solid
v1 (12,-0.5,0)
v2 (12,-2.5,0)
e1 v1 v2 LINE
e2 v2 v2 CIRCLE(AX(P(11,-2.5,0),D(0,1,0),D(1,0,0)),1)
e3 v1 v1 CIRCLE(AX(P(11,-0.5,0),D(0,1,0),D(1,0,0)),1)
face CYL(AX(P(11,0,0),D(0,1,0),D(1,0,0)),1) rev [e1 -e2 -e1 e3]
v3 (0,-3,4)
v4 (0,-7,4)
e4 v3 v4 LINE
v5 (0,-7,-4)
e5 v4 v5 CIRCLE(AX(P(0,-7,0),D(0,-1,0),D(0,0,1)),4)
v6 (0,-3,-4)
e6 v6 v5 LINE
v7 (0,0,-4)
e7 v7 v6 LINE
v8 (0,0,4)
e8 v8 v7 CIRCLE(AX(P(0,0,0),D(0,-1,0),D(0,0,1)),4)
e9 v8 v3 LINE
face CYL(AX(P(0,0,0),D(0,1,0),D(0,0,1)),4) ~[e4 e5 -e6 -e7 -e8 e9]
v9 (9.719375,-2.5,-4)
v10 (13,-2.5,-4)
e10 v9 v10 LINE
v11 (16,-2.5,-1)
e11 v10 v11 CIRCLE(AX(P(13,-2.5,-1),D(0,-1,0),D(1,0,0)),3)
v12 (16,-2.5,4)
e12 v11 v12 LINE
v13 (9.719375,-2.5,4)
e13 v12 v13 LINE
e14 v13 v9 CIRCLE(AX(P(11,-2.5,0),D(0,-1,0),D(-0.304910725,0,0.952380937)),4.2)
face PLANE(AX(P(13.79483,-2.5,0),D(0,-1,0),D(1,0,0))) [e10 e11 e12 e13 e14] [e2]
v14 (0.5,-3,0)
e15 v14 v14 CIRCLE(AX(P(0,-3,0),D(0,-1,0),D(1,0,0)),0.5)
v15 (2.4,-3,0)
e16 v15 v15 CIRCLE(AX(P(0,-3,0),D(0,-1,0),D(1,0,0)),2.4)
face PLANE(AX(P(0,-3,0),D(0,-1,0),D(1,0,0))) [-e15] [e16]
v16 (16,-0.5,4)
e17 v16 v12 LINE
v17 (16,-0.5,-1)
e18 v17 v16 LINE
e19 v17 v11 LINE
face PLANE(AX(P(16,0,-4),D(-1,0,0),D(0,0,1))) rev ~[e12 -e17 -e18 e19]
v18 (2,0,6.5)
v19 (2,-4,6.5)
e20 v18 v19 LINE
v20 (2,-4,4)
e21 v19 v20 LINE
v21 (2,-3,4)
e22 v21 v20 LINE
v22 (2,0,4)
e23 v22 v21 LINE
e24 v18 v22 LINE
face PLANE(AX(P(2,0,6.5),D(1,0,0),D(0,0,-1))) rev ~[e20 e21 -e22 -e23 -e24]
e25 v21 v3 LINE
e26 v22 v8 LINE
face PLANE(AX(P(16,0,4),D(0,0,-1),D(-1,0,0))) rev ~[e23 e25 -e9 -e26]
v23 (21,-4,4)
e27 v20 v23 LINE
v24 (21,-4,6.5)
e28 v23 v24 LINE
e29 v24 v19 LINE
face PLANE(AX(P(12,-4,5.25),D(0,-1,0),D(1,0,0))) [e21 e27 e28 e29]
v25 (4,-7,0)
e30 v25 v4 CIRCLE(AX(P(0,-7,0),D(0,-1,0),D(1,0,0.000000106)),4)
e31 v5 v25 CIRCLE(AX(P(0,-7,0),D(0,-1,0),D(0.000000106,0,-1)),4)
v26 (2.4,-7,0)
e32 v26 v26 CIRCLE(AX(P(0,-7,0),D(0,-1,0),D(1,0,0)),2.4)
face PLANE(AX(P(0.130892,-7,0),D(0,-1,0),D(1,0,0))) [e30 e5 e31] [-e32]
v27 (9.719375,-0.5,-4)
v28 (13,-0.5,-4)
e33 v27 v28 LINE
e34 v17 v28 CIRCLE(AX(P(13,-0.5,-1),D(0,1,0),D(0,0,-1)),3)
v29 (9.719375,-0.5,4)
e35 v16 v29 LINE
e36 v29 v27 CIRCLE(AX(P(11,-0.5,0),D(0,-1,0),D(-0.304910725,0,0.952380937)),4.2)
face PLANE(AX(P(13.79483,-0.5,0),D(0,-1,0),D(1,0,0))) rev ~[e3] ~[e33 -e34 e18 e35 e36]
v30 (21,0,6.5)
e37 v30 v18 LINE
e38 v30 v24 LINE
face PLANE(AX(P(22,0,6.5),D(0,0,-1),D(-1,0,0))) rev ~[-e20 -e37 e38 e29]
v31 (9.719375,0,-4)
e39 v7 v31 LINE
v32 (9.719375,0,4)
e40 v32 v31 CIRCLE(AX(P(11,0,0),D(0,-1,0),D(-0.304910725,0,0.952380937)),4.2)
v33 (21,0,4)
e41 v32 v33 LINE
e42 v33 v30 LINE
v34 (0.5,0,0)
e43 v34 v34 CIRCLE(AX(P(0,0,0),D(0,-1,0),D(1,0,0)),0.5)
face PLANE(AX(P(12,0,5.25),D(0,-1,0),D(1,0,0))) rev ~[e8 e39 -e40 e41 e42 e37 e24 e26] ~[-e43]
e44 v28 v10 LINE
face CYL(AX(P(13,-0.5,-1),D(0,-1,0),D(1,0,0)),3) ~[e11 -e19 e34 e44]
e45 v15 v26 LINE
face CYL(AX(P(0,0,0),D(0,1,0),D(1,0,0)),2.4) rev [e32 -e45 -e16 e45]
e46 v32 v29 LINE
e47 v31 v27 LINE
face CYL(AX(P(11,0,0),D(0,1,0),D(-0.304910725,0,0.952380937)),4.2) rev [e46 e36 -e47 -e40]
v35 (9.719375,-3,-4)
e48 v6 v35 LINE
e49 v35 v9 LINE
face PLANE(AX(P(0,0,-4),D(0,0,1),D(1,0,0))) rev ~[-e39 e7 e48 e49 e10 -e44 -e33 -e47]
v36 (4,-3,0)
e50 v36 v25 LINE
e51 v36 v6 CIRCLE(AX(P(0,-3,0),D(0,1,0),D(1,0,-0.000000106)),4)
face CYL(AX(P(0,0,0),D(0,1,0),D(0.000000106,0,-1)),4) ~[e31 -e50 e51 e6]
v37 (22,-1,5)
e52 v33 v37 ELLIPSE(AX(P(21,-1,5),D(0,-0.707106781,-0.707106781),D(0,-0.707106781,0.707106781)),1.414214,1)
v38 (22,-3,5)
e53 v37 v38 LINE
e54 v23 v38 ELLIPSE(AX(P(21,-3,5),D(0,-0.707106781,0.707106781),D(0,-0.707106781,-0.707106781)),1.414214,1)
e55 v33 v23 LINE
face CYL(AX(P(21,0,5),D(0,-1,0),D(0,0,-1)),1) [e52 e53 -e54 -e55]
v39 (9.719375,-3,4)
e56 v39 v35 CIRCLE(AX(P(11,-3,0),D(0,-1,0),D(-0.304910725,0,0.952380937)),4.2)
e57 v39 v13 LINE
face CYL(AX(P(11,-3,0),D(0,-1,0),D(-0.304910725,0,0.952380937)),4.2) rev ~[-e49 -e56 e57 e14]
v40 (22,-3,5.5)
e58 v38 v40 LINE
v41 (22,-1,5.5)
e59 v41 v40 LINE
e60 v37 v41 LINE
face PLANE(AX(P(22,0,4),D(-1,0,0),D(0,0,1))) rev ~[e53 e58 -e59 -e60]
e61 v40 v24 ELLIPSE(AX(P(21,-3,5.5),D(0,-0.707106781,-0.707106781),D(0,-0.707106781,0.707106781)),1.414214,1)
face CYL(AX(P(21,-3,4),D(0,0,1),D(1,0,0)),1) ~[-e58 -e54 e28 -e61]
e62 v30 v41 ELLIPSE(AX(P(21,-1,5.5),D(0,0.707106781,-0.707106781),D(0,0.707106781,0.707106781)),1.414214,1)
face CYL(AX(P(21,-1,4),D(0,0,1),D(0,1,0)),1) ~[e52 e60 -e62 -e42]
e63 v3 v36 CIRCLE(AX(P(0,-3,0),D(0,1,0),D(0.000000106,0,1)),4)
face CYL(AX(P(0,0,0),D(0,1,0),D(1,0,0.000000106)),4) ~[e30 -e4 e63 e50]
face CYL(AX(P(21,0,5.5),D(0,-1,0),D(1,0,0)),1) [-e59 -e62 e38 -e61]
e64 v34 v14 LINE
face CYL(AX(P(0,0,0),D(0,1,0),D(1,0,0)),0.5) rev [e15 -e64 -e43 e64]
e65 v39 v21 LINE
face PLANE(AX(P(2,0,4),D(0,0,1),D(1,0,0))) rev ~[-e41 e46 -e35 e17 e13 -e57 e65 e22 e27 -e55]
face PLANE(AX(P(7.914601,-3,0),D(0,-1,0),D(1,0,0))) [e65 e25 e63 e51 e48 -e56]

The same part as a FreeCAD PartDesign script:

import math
import FreeCAD as App
import Part
import Sketcher
from FreeCAD import Vector
Q = App.Units.Quantity


def edges_at(feature, points):
    """Names of the edges that pass closest to the given points."""
    edges = feature.Shape.Edges
    near = lambda p: min(range(len(edges)), key=lambda i: edges[i].distToShape(Part.Vertex(*p))[0])
    return sorted({f"Edge{near(p) + 1}" for p in points})

doc = App.newDocument("Part")
body = doc.addObject("PartDesign::Body", "Body")

sketch1 = body.newObject("Sketcher::SketchObject", "Sketch")
sketch1.AttachmentSupport = (doc.getObject("XZ_Plane"), [""])
sketch1.MapMode = "FlatFace"
sketch1.addGeometry(Part.ArcOfCircle(Part.Circle(Vector(0, 0, 0), Vector(0, 0, 1), 4), math.radians(0), math.radians(90)), False)
sketch1.addGeometry(Part.ArcOfCircle(Part.Circle(Vector(0, 0, 0), Vector(0, 0, 1), 4), math.radians(-90), math.radians(0)), False)
sketch1.addGeometry(Part.LineSegment(Vector(0, -4, 0), Vector(16, -4, 0)), False)
sketch1.addGeometry(Part.LineSegment(Vector(16, -4, 0), Vector(16, 4, 0)), False)
sketch1.addGeometry(Part.LineSegment(Vector(16, 4, 0), Vector(0, 4, 0)), False)
sketch1.addGeometry(Part.Circle(Vector(11, 0, 0), Vector(0, 0, 1), 1), False)
sketch1.addConstraint(Sketcher.Constraint("Tangent", 0, 1, 1, 2))
sketch1.addConstraint(Sketcher.Constraint("Tangent", 1, 1, 2, 1))
sketch1.addConstraint(Sketcher.Constraint("Coincident", 2, 2, 3, 1))
sketch1.addConstraint(Sketcher.Constraint("Coincident", 3, 2, 4, 1))
sketch1.addConstraint(Sketcher.Constraint("Tangent", 4, 2, 0, 2))
sketch1.addConstraint(Sketcher.Constraint("Horizontal", 2))
sketch1.addConstraint(Sketcher.Constraint("Vertical", 3))
sketch1.addConstraint(Sketcher.Constraint("Horizontal", 4))
sketch1.addConstraint(Sketcher.Constraint("Coincident", 0, 3, -1, 1))
sketch1.addConstraint(Sketcher.Constraint("Equal", 0, 1))
sketch1.addConstraint(Sketcher.Constraint("PointOnObject", 5, 3, -1))
sketch1.addConstraint(Sketcher.Constraint("PointOnObject", 0, 1, -1))
sketch1.addConstraint(Sketcher.Constraint("Diameter", 5, Q("2 mm")))
sketch1.addConstraint(Sketcher.Constraint("Radius", 0, Q("4 mm")))
sketch1.addConstraint(Sketcher.Constraint("DistanceX", 2, 1, 2, 2, Q("16 mm")))
sketch1.addConstraint(Sketcher.Constraint("DistanceX", -1, 1, 5, 3, Q("11 mm")))
pad1 = body.newObject("PartDesign::Pad", "Pad")
pad1.Profile = sketch1
pad1.Length = 3

sketch2 = body.newObject("Sketcher::SketchObject", "Sketch001")
sketch2.AttachmentSupport = (doc.getObject("XZ_Plane"), [""])
sketch2.MapMode = "FlatFace"
sketch2.addGeometry(Part.ArcOfCircle(Part.Circle(Vector(0, 0, 0), Vector(0, 0, 1), 4), math.radians(-90), math.radians(0)), False)
sketch2.addGeometry(Part.ArcOfCircle(Part.Circle(Vector(0, 0, 0), Vector(0, 0, 1), 4), math.radians(0), math.radians(90)), False)
sketch2.addGeometry(Part.ArcOfCircle(Part.Circle(Vector(0, 0, 0), Vector(0, 0, 1), 4), math.radians(90), math.radians(270)), False)
sketch2.addGeometry(Part.Circle(Vector(0, 0, 0), Vector(0, 0, 1), 2.4), False)
sketch2.addConstraint(Sketcher.Constraint("Tangent", 0, 2, 1, 1))
sketch2.addConstraint(Sketcher.Constraint("Tangent", 1, 2, 2, 1))
sketch2.addConstraint(Sketcher.Constraint("Tangent", 2, 2, 0, 1))
sketch2.addConstraint(Sketcher.Constraint("Coincident", 0, 3, -1, 1))
sketch2.addConstraint(Sketcher.Constraint("Coincident", 3, 3, -1, 1))
sketch2.addConstraint(Sketcher.Constraint("PointOnObject", 0, 2, -1))
sketch2.addConstraint(Sketcher.Constraint("PointOnObject", 1, 2, -2))
sketch2.addConstraint(Sketcher.Constraint("PointOnObject", 2, 2, -2))
sketch2.addConstraint(Sketcher.Constraint("Radius", 0, Q("4 mm")))
sketch2.addConstraint(Sketcher.Constraint("Diameter", 3, Q("4.8 mm")))
pad2 = body.newObject("PartDesign::Pad", "Pad001")
pad2.Profile = sketch2
pad2.Length = 7

sketch3 = body.newObject("Sketcher::SketchObject", "Sketch002")
sketch3.AttachmentSupport = (doc.getObject("XZ_Plane"), [""])
sketch3.MapMode = "FlatFace"
sketch3.addGeometry(Part.Circle(Vector(0, 0, 0), Vector(0, 0, 1), 2.4), False)
sketch3.addGeometry(Part.Circle(Vector(0, 0, 0), Vector(0, 0, 1), 0.5), False)
sketch3.addConstraint(Sketcher.Constraint("Coincident", 0, 3, -1, 1))
sketch3.addConstraint(Sketcher.Constraint("Coincident", 1, 3, -1, 1))
sketch3.addConstraint(Sketcher.Constraint("Diameter", 1, Q("1 mm")))
sketch3.addConstraint(Sketcher.Constraint("Diameter", 0, Q("4.8 mm")))
pad3 = body.newObject("PartDesign::Pad", "Pad002")
pad3.Profile = sketch3
pad3.Length = 3

sketch4 = body.newObject("Sketcher::SketchObject", "Sketch003")
sketch4.AttachmentSupport = (doc.getObject("XZ_Plane"), [""])
sketch4.MapMode = "FlatFace"
sketch4.addGeometry(Part.LineSegment(Vector(19.4, -4, 0), Vector(19.4, 4, 0)), False)
sketch4.addGeometry(Part.LineSegment(Vector(19.4, 4, 0), Vector(9.7, 4, 0)), False)
sketch4.addGeometry(Part.ArcOfCircle(Part.Circle(Vector(11, 0, 0), Vector(0, 0, 1), 4.2), math.radians(108), math.radians(252)), False)
sketch4.addGeometry(Part.LineSegment(Vector(9.7, -4, 0), Vector(19.4, -4, 0)), False)
sketch4.addConstraint(Sketcher.Constraint("Coincident", 0, 2, 1, 1))
sketch4.addConstraint(Sketcher.Constraint("Coincident", 1, 2, 2, 1))
sketch4.addConstraint(Sketcher.Constraint("Coincident", 2, 2, 3, 1))
sketch4.addConstraint(Sketcher.Constraint("Coincident", 3, 2, 0, 1))
sketch4.addConstraint(Sketcher.Constraint("Vertical", 0))
sketch4.addConstraint(Sketcher.Constraint("Horizontal", 1))
sketch4.addConstraint(Sketcher.Constraint("Horizontal", 3))
sketch4.addConstraint(Sketcher.Constraint("Symmetric", 1, 2, 2, 2, -1))
sketch4.addConstraint(Sketcher.Constraint("Radius", 2, Q("4.2 mm")))
sketch4.addConstraint(Sketcher.Constraint("DistanceY", 0, 1, 0, 2, Q("8 mm")))
sketch4.addConstraint(Sketcher.Constraint("DistanceX", -1, 1, 2, 3, Q("11 mm")))
sketch4.addConstraint(Sketcher.Constraint("DistanceX", 1, 2, 1, 1, Q("9.66835 mm")))
pocket1 = body.newObject("PartDesign::Pocket", "Pocket")
pocket1.Profile = sketch4
pocket1.Length = 0.5
pocket1.Reversed = True

sketch5 = body.newObject("Sketcher::SketchObject", "Sketch004")
sketch5.AttachmentSupport = (doc.getObject("XZ_Plane"), [""])
sketch5.MapMode = "FlatFace"
sketch5.addGeometry(Part.LineSegment(Vector(2, 6.5, 0), Vector(2, 4, 0)), False)
sketch5.addGeometry(Part.LineSegment(Vector(2, 4, 0), Vector(22, 4, 0)), False)
sketch5.addGeometry(Part.LineSegment(Vector(22, 4, 0), Vector(22, 6.5, 0)), False)
sketch5.addGeometry(Part.LineSegment(Vector(22, 6.5, 0), Vector(2, 6.5, 0)), False)
sketch5.addConstraint(Sketcher.Constraint("Coincident", 0, 2, 1, 1))
sketch5.addConstraint(Sketcher.Constraint("Coincident", 1, 2, 2, 1))
sketch5.addConstraint(Sketcher.Constraint("Coincident", 2, 2, 3, 1))
sketch5.addConstraint(Sketcher.Constraint("Coincident", 3, 2, 0, 1))
sketch5.addConstraint(Sketcher.Constraint("Vertical", 0))
sketch5.addConstraint(Sketcher.Constraint("Horizontal", 1))
sketch5.addConstraint(Sketcher.Constraint("Vertical", 2))
sketch5.addConstraint(Sketcher.Constraint("Horizontal", 3))
sketch5.addConstraint(Sketcher.Constraint("DistanceX", 1, 1, 1, 2, Q("20 mm")))
sketch5.addConstraint(Sketcher.Constraint("DistanceY", 0, 2, 0, 1, Q("2.5 mm")))
sketch5.addConstraint(Sketcher.Constraint("DistanceX", -1, 1, 0, 2, Q("2 mm")))
sketch5.addConstraint(Sketcher.Constraint("DistanceY", -1, 1, 0, 2, Q("4 mm")))
pad4 = body.newObject("PartDesign::Pad", "Pad003")
pad4.Profile = sketch5
pad4.Length = 4
doc.recompute()

fillet = body.newObject("PartDesign::Fillet", "Fillet")
fillet.Base = (pad4, edges_at(pad4, [(16, -1.75, -4)]))
fillet.Radius = 3
doc.recompute()

fillet2 = body.newObject("PartDesign::Fillet", "Fillet001")
fillet2.Base = (fillet, edges_at(fillet, [
    (22, -2, 4),
    (22, -4, 5.25),
    (22, 0, 5.25),
    (22, -2, 6.5),
]))
fillet2.Radius = 1

sketch6 = body.newObject("Sketcher::SketchObject", "Sketch005")
sketch6.AttachmentSupport = (doc.getObject("XZ_Plane"), [""])
sketch6.MapMode = "FlatFace"
sketch6.AttachmentOffset = App.Placement(Vector(0, 0, 3), App.Rotation())
sketch6.addGeometry(Part.LineSegment(Vector(19.4, -4, 0), Vector(19.4, 4, 0)), False)
sketch6.addGeometry(Part.LineSegment(Vector(19.4, 4, 0), Vector(9.7, 4, 0)), False)
sketch6.addGeometry(Part.ArcOfCircle(Part.Circle(Vector(11, 0, 0), Vector(0, 0, 1), 4.2), math.radians(108), math.radians(252)), False)
sketch6.addGeometry(Part.LineSegment(Vector(9.7, -4, 0), Vector(19.4, -4, 0)), False)
sketch6.addConstraint(Sketcher.Constraint("Coincident", 0, 2, 1, 1))
sketch6.addConstraint(Sketcher.Constraint("Coincident", 1, 2, 2, 1))
sketch6.addConstraint(Sketcher.Constraint("Coincident", 2, 2, 3, 1))
sketch6.addConstraint(Sketcher.Constraint("Coincident", 3, 2, 0, 1))
sketch6.addConstraint(Sketcher.Constraint("Vertical", 0))
sketch6.addConstraint(Sketcher.Constraint("Horizontal", 1))
sketch6.addConstraint(Sketcher.Constraint("Horizontal", 3))
sketch6.addConstraint(Sketcher.Constraint("Symmetric", 1, 2, 2, 2, -1))
sketch6.addConstraint(Sketcher.Constraint("Radius", 2, Q("4.2 mm")))
sketch6.addConstraint(Sketcher.Constraint("DistanceY", 0, 1, 0, 2, Q("8 mm")))
sketch6.addConstraint(Sketcher.Constraint("DistanceX", -1, 1, 2, 3, Q("11 mm")))
sketch6.addConstraint(Sketcher.Constraint("DistanceX", 1, 2, 1, 1, Q("9.66835 mm")))
pocket2 = body.newObject("PartDesign::Pocket", "Pocket001")
pocket2.Profile = sketch6
pocket2.Length = 0.5

doc.recompute()
